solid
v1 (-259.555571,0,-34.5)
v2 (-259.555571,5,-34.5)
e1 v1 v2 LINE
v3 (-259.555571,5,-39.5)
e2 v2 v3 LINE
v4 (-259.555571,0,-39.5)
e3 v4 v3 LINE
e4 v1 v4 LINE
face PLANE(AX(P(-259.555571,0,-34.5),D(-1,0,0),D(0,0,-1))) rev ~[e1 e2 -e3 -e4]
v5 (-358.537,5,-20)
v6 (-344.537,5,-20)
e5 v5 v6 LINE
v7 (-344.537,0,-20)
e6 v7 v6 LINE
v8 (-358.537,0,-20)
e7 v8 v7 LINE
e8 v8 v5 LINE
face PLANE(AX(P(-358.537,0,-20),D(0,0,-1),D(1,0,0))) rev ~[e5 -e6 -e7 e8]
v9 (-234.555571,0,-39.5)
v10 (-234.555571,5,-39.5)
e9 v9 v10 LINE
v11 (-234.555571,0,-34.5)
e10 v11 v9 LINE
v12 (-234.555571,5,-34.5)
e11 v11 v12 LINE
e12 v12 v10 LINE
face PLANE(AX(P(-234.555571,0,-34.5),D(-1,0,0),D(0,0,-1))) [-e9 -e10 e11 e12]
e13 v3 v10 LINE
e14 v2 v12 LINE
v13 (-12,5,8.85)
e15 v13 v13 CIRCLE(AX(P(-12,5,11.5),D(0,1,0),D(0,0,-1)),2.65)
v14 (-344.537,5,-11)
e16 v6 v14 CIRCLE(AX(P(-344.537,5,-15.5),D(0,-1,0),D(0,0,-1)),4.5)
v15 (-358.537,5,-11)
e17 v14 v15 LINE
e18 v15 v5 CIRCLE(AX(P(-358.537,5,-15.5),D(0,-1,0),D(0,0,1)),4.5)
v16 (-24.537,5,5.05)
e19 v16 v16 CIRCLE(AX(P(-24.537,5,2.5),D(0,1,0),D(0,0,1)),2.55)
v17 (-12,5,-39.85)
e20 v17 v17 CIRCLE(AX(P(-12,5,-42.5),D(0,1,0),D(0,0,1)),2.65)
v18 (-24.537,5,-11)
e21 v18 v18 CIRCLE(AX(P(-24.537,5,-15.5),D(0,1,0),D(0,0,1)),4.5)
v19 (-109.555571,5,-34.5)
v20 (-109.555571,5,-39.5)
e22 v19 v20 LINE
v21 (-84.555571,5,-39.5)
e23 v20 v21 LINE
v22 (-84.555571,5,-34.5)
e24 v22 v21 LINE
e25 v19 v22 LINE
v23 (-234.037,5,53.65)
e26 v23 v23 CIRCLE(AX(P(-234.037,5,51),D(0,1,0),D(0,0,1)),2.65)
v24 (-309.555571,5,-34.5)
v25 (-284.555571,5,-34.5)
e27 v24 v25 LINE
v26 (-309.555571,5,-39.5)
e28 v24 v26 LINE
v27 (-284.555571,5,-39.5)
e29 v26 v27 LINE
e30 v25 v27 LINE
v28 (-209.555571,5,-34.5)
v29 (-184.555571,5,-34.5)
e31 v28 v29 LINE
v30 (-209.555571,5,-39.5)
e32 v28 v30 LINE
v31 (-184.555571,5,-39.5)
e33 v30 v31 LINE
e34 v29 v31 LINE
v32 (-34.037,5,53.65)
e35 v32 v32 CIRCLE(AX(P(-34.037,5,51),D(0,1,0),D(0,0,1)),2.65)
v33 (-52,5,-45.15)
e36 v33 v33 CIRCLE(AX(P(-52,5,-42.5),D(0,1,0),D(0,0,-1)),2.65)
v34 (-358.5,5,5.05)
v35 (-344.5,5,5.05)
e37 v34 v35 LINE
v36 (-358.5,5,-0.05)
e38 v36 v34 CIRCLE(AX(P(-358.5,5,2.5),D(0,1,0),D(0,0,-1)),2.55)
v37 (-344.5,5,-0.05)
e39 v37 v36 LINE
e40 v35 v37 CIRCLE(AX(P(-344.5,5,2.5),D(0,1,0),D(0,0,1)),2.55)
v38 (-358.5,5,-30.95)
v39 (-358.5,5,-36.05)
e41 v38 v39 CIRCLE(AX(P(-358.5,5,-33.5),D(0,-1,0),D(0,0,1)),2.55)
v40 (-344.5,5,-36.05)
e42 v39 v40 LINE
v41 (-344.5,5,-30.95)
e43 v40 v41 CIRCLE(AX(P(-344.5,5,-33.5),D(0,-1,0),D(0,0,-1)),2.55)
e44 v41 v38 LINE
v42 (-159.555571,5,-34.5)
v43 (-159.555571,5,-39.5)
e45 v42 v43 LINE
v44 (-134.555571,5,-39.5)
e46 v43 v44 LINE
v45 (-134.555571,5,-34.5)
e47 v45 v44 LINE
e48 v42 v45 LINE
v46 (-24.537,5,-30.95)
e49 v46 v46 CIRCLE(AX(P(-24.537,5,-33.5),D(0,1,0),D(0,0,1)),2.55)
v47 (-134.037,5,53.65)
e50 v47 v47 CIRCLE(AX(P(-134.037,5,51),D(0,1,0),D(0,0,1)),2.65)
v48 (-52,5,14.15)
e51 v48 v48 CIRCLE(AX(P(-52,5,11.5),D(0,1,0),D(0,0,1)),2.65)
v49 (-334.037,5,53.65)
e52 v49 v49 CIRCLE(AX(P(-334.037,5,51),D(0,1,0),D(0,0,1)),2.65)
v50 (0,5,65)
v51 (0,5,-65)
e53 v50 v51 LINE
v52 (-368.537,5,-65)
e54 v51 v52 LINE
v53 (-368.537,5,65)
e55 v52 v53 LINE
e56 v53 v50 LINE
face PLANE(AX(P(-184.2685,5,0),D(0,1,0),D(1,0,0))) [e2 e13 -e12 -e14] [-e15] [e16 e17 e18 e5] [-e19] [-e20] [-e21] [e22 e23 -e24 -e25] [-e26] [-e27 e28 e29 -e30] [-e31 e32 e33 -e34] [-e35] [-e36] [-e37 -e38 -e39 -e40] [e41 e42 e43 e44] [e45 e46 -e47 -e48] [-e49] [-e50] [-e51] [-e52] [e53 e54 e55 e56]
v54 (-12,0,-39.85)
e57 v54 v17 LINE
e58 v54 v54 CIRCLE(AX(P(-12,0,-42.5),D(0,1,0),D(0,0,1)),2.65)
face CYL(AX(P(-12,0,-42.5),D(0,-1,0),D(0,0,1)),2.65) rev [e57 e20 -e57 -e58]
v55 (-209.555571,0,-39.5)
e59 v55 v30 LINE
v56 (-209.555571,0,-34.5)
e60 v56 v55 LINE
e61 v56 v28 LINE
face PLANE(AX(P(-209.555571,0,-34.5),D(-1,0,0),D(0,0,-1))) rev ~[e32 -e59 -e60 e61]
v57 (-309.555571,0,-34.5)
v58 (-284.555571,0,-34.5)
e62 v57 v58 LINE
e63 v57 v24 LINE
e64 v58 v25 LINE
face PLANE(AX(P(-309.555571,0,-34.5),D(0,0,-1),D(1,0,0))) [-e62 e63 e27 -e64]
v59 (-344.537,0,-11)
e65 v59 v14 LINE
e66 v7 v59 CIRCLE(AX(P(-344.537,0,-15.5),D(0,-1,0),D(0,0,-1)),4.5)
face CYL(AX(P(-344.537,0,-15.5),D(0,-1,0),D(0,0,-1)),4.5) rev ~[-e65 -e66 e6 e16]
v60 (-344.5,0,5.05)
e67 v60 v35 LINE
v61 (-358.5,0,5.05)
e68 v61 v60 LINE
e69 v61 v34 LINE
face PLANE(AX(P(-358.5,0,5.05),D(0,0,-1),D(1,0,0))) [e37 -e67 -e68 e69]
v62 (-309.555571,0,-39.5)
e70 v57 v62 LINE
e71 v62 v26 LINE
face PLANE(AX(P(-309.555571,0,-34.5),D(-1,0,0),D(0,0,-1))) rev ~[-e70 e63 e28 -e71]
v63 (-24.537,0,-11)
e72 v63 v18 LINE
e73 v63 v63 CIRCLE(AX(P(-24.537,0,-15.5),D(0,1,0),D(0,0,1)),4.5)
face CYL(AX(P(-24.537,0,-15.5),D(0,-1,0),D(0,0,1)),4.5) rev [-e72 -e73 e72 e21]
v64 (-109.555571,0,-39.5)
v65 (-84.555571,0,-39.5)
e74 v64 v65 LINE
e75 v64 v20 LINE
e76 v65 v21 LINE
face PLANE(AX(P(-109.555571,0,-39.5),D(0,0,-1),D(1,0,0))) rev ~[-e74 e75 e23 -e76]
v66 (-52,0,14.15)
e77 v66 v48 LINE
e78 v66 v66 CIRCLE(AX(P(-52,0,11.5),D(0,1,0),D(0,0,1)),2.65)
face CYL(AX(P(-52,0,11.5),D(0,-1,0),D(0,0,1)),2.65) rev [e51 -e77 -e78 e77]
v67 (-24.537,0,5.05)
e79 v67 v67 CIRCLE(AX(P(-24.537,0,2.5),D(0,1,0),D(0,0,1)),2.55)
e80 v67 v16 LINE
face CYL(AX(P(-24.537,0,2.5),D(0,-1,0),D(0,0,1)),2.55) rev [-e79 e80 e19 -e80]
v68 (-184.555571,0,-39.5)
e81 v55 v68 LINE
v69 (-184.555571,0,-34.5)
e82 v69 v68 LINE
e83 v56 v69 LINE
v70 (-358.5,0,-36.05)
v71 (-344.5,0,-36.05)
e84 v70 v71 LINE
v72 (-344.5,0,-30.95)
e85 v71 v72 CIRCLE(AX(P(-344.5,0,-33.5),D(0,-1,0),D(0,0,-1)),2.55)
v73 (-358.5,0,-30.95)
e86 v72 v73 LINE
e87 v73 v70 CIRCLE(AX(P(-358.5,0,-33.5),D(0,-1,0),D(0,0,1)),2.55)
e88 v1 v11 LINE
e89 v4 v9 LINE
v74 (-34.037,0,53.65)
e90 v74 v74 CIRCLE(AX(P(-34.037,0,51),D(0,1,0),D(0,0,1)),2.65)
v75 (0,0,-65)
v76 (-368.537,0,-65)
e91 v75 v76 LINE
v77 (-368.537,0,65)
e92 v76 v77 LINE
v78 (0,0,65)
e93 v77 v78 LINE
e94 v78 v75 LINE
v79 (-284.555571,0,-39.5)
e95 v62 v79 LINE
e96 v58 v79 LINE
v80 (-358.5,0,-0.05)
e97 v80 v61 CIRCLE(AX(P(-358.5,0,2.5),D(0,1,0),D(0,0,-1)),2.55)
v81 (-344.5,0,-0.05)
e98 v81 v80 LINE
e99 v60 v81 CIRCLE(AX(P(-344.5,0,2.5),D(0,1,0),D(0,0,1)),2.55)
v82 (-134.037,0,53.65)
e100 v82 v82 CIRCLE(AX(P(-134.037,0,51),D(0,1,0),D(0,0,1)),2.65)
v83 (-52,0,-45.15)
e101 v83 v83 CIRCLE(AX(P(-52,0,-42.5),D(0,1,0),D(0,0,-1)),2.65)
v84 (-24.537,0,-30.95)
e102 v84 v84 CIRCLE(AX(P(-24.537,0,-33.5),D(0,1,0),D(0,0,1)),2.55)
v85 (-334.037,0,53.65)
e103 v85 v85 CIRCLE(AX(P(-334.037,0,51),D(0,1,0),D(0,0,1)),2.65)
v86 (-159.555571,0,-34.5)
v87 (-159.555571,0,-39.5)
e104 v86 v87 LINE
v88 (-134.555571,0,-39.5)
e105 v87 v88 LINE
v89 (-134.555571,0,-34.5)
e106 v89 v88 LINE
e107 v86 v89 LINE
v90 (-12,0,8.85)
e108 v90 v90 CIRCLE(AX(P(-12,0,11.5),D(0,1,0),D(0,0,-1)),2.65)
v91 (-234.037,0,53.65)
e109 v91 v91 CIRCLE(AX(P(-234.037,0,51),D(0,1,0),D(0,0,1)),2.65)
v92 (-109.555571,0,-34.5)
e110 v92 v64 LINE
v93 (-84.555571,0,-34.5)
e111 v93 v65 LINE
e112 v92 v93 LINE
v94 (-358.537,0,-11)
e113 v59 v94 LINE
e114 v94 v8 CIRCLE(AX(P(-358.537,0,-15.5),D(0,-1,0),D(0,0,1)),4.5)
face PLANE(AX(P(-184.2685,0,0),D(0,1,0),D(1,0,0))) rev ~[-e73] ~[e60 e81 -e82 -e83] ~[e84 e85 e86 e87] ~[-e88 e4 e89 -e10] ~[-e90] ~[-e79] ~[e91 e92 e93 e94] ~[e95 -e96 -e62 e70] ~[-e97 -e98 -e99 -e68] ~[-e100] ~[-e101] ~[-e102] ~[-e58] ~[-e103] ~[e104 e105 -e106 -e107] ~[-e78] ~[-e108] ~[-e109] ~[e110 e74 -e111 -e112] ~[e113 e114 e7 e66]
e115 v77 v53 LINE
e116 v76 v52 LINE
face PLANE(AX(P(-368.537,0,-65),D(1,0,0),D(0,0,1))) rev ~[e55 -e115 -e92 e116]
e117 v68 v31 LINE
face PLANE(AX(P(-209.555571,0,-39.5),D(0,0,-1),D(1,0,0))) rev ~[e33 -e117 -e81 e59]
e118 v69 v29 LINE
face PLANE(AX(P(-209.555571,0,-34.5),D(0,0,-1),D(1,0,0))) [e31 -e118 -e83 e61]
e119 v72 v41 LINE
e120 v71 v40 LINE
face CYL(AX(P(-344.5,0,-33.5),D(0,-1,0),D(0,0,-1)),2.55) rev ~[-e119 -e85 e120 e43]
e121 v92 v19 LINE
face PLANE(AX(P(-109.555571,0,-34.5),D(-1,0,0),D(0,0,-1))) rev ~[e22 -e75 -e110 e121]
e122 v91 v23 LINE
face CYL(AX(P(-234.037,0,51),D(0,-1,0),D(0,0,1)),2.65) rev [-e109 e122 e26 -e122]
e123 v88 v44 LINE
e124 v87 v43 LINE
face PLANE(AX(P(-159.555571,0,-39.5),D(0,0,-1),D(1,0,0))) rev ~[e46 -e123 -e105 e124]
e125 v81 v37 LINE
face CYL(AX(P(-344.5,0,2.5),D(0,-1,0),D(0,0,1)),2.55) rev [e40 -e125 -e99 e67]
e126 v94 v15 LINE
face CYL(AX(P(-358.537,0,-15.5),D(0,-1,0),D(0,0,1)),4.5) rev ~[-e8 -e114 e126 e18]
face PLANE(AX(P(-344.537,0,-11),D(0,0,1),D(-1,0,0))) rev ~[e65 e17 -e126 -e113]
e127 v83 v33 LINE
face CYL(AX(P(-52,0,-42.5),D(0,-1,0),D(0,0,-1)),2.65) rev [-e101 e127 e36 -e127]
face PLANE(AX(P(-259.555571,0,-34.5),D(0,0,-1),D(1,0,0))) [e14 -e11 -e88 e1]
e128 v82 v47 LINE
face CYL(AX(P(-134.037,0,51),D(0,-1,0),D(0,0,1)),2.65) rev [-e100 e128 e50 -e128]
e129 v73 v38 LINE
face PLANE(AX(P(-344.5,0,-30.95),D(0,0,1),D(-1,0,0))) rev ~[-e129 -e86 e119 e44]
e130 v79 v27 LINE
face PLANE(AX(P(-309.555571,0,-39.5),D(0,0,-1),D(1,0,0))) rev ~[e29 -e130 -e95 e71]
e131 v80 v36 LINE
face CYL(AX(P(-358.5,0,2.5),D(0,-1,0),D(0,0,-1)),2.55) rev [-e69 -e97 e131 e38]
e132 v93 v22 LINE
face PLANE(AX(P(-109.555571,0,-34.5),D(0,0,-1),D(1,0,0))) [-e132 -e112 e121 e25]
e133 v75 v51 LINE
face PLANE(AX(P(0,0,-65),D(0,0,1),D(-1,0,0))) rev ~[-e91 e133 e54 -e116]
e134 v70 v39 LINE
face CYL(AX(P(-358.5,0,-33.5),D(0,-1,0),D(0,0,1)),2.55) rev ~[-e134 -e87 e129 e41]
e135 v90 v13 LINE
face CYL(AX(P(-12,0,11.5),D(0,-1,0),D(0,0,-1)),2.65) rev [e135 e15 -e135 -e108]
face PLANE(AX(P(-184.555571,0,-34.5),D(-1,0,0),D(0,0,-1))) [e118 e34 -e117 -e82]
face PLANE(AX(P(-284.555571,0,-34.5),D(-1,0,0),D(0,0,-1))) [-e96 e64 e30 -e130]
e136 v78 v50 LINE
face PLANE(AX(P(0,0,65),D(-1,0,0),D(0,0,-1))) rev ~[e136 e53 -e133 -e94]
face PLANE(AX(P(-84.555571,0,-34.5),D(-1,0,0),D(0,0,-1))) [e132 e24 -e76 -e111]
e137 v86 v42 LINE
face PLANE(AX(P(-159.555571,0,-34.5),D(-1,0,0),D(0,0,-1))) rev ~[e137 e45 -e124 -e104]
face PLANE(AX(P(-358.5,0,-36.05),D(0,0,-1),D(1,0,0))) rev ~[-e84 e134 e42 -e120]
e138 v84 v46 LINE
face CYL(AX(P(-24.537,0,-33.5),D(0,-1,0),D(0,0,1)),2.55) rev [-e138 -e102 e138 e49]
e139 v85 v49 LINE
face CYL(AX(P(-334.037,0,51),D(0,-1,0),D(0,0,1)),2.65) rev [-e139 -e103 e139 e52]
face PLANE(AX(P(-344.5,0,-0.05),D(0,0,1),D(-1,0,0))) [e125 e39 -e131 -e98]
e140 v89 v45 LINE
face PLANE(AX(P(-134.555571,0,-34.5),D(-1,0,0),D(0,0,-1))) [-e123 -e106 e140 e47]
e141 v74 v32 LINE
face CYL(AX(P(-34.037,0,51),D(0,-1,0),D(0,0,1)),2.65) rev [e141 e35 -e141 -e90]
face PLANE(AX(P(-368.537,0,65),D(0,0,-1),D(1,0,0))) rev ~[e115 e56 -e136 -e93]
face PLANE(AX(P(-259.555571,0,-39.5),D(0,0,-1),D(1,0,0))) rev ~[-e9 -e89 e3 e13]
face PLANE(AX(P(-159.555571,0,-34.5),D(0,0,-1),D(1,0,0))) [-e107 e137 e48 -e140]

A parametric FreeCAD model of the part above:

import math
import FreeCAD as App
import Part
import Sketcher


def add_polygon(sketch, points):
    """Adds a closed chain of lines whose ends are joined by coincident constraints."""
    first, n = sketch.GeometryCount, len(points)
    for a, b in zip(points, points[1:] + points[:1]):
        sketch.addGeometry(Part.LineSegment(App.Vector(*a, 0), App.Vector(*b, 0)), False)
    for i in range(n):
        sketch.addConstraint(Sketcher.Constraint("Coincident", first + i, 2, first + (i + 1) % n, 1))

doc = App.newDocument("Part")
body = doc.addObject("PartDesign::Body", "Body")

# Sketch on XZ plane
sketch1 = body.newObject("Sketcher::SketchObject", "Sketch")
sketch1.AttachmentSupport = (doc.getObject("XZ_Plane"), [""])
sketch1.MapMode = "FlatFace"
add_polygon(sketch1, [(0, -65), (-368.537, -65), (-368.537, 65), (0, 65)])  # lines 0-3
sketch1.addGeometry(Part.Circle(App.Vector(-334.037, 51, 0), App.Vector(0, 0, 1), 2.65), False)  # 4
sketch1.addGeometry(Part.Circle(App.Vector(-234.037, 51, 0), App.Vector(0, 0, 1), 2.65), False)  # 5
sketch1.addGeometry(Part.Circle(App.Vector(-134.037, 51, 0), App.Vector(0, 0, 1), 2.65), False)  # 6
sketch1.addGeometry(Part.Circle(App.Vector(-34.037, 51, 0), App.Vector(0, 0, 1), 2.65), False)  # 7
sketch1.addGeometry(Part.Circle(App.Vector(-52, 11.5, 0), App.Vector(0, 0, 1), 2.65), False)  # 8
sketch1.addGeometry(Part.Circle(App.Vector(-12, 11.5, 0), App.Vector(0, 0, 1), 2.65), False)  # 9
sketch1.addGeometry(Part.LineSegment(App.Vector(-358.5, -0.05, 0), App.Vector(-344.5, -0.05, 0)), False)  # 10
sketch1.addGeometry(Part.ArcOfCircle(Part.Circle(App.Vector(-344.5, 2.5, 0), App.Vector(0, 0, 1), 2.55), math.radians(-90), math.radians(90)), False)  # 11
sketch1.addGeometry(Part.LineSegment(App.Vector(-344.5, 5.05, 0), App.Vector(-358.5, 5.05, 0)), False)  # 12
sketch1.addGeometry(Part.ArcOfCircle(Part.Circle(App.Vector(-358.5, 2.5, 0), App.Vector(0, 0, 1), 2.55), math.radians(90), math.radians(270)), False)  # 13
sketch1.addGeometry(Part.ArcOfCircle(Part.Circle(App.Vector(-358.537, -15.5, 0), App.Vector(0, 0, 1), 4.5), math.radians(90), math.radians(270)), False)  # 14
sketch1.addGeometry(Part.LineSegment(App.Vector(-358.537, -20, 0), App.Vector(-344.537, -20, 0)), False)  # 15
sketch1.addGeometry(Part.ArcOfCircle(Part.Circle(App.Vector(-344.537, -15.5, 0), App.Vector(0, 0, 1), 4.5), math.radians(-90), math.radians(90)), False)  # 16
sketch1.addGeometry(Part.LineSegment(App.Vector(-344.537, -11, 0), App.Vector(-358.537, -11, 0)), False)  # 17
sketch1.addGeometry(Part.ArcOfCircle(Part.Circle(App.Vector(-358.5, -33.5, 0), App.Vector(0, 0, 1), 2.55), math.radians(90), math.radians(270)), False)  # 18
sketch1.addGeometry(Part.LineSegment(App.Vector(-358.5, -36.05, 0), App.Vector(-344.5, -36.05, 0)), False)  # 19
sketch1.addGeometry(Part.ArcOfCircle(Part.Circle(App.Vector(-344.5, -33.5, 0), App.Vector(0, 0, 1), 2.55), math.radians(-90), math.radians(90)), False)  # 20
sketch1.addGeometry(Part.LineSegment(App.Vector(-344.5, -30.95, 0), App.Vector(-358.5, -30.95, 0)), False)  # 21
add_polygon(sketch1, [(-284.555571, -34.5), (-309.555571, -34.5), (-309.555571, -39.5), (-284.555571, -39.5)])  # lines 22-25
add_polygon(sketch1, [(-234.555571, -34.5), (-259.555571, -34.5), (-259.555571, -39.5), (-234.555571, -39.5)])  # lines 26-29
add_polygon(sketch1, [(-184.555571, -34.5), (-209.555571, -34.5), (-209.555571, -39.5), (-184.555571, -39.5)])  # lines 30-33
sketch1.addGeometry(Part.Circle(App.Vector(-24.537, 2.5, 0), App.Vector(0, 0, 1), 2.55), False)  # 34
sketch1.addGeometry(Part.Circle(App.Vector(-24.537, -15.5, 0), App.Vector(0, 0, 1), 4.5), False)  # 35
add_polygon(sketch1, [(-134.555571, -34.5), (-159.555571, -34.5), (-159.555571, -39.5), (-134.555571, -39.5)])  # lines 36-39
add_polygon(sketch1, [(-84.555571, -34.5), (-109.555571, -34.5), (-109.555571, -39.5), (-84.555571, -39.5)])  # lines 40-43
sketch1.addGeometry(Part.Circle(App.Vector(-24.537, -33.5, 0), App.Vector(0, 0, 1), 2.55), False)  # 44
sketch1.addGeometry(Part.Circle(App.Vector(-52, -42.5, 0), App.Vector(0, 0, 1), 2.65), False)  # 45
sketch1.addGeometry(Part.Circle(App.Vector(-12, -42.5, 0), App.Vector(0, 0, 1), 2.65), False)  # 46
sketch1.addConstraint([
    Sketcher.Constraint("Tangent", 10, 2, 11, 1),
    Sketcher.Constraint("Tangent", 11, 2, 12, 1),
    Sketcher.Constraint("Tangent", 12, 2, 13, 1),
    Sketcher.Constraint("Tangent", 13, 2, 10, 1),
    Sketcher.Constraint("Tangent", 14, 2, 15, 1),
    Sketcher.Constraint("Tangent", 15, 2, 16, 1),
    Sketcher.Constraint("Tangent", 16, 2, 17, 1),
    Sketcher.Constraint("Tangent", 17, 2, 14, 1),
    Sketcher.Constraint("Tangent", 18, 2, 19, 1),
    Sketcher.Constraint("Tangent", 19, 2, 20, 1),
    Sketcher.Constraint("Tangent", 20, 2, 21, 1),
    Sketcher.Constraint("Tangent", 21, 2, 18, 1),
    Sketcher.Constraint("Horizontal", 0),
    Sketcher.Constraint("Vertical", 1),
    Sketcher.Constraint("Horizontal", 2),
    Sketcher.Constraint("Vertical", 3),
    Sketcher.Constraint("Horizontal", 10),
    Sketcher.Constraint("Horizontal", 12),
    Sketcher.Constraint("Horizontal", 15),
    Sketcher.Constraint("Horizontal", 17),
    Sketcher.Constraint("Horizontal", 19),
    Sketcher.Constraint("Horizontal", 21),
    Sketcher.Constraint("Horizontal", 22),
    Sketcher.Constraint("Vertical", 23),
    Sketcher.Constraint("Horizontal", 24),
    Sketcher.Constraint("Vertical", 25),
    Sketcher.Constraint("Horizontal", 26),
    Sketcher.Constraint("Vertical", 27),
    Sketcher.Constraint("Horizontal", 28),
    Sketcher.Constraint("Vertical", 29),
    Sketcher.Constraint("Horizontal", 30),
    Sketcher.Constraint("Vertical", 31),
    Sketcher.Constraint("Horizontal", 32),
    Sketcher.Constraint("Vertical", 33),
    Sketcher.Constraint("Horizontal", 36),
    Sketcher.Constraint("Vertical", 37),
    Sketcher.Constraint("Horizontal", 38),
    Sketcher.Constraint("Vertical", 39),
    Sketcher.Constraint("Horizontal", 40),
    Sketcher.Constraint("Vertical", 41),
    Sketcher.Constraint("Horizontal", 42),
    Sketcher.Constraint("Vertical", 43),
    Sketcher.Constraint("Equal", 4, 5),
    Sketcher.Constraint("Equal", 5, 6),
    Sketcher.Constraint("Equal", 6, 7),
    Sketcher.Constraint("Equal", 7, 8),
    Sketcher.Constraint("Equal", 8, 9),
    Sketcher.Constraint("Equal", 13, 18),
    Sketcher.Constraint("Equal", 20, 34),
    Sketcher.Constraint("Equal", 16, 35),
    Sketcher.Constraint("Equal", 34, 44),
    Sketcher.Constraint("Equal", 9, 45),
    Sketcher.Constraint("Equal", 45, 46),
    Sketcher.Constraint("Symmetric", 2, 2, 3, 2, -1, 1),
    Sketcher.Constraint("Horizontal", 4, 3, 5, 3),
    Sketcher.Constraint("Horizontal", 5, 3, 6, 3),
    Sketcher.Constraint("Horizontal", 6, 3, 7, 3),
    Sketcher.Constraint("Horizontal", 8, 3, 9, 3),
    Sketcher.Constraint("Horizontal", 13, 3, 34, 3),
    Sketcher.Constraint("Horizontal", 16, 3, 35, 3),
    Sketcher.Constraint("Horizontal", 20, 3, 44, 3),
    Sketcher.Constraint("Horizontal", 45, 3, 46, 3),
    Sketcher.Constraint("Horizontal", 25, 2, 26, 2),
    Sketcher.Constraint("Horizontal", 24, 2, 27, 2),
    Sketcher.Constraint("Horizontal", 29, 2, 30, 2),
    Sketcher.Constraint("Horizontal", 28, 2, 31, 2),
    Sketcher.Constraint("Horizontal", 33, 2, 36, 2),
    Sketcher.Constraint("Horizontal", 32, 2, 37, 2),
    Sketcher.Constraint("Horizontal", 39, 2, 40, 2),
    Sketcher.Constraint("Horizontal", 38, 2, 41, 2),
    Sketcher.Constraint("Vertical", 13, 3, 18, 3),
    Sketcher.Constraint("Vertical", 11, 3, 20, 3),
    Sketcher.Constraint("Vertical", 34, 3, 35, 3),
    Sketcher.Constraint("Vertical", 35, 3, 44, 3),
    Sketcher.Constraint("Vertical", 8, 3, 45, 3),
    Sketcher.Constraint("Vertical", 9, 3, 46, 3),
    Sketcher.Constraint("Equal", 12, 15),
    Sketcher.Constraint("Equal", 24, 26),
    Sketcher.Constraint("Equal", 28, 30),
    Sketcher.Constraint("Equal", 32, 36),
    Sketcher.Constraint("Equal", 38, 40),
    Sketcher.Constraint("Diameter", 35, 9.0),
    Sketcher.Constraint("Diameter", 4, 5.3),
    Sketcher.Constraint("Diameter", 34, 5.1),
    Sketcher.Constraint("DistanceX", 10, 1, 10, 2, 14.0),
    Sketcher.Constraint("DistanceX", 22, 2, 22, 1, 25.0),
    Sketcher.Constraint("DistanceY", 1, 1, 1, 2, 130.0),
    Sketcher.Constraint("DistanceY", 23, 2, 23, 1, 5.0),
    Sketcher.Constraint("DistanceY", -1, 1, 4, 3, 51.0),
    Sketcher.Constraint("DistanceX", 8, 3, -1, 1, 52.0),
    Sketcher.Constraint("DistanceX", 9, 3, -1, 1, 12.0),
    Sketcher.Constraint("DistanceY", 14, 2, -1, 1, 20.0),
    Sketcher.Constraint("DistanceX", 4, 3, 5, 3, 100.0),
    Sketcher.Constraint("DistanceX", 5, 3, 6, 3, 100.0),
    Sketcher.Constraint("DistanceX", 6, 3, 7, 3, 100.0),
    Sketcher.Constraint("DistanceY", 11, 3, 8, 3, 9.0),
    Sketcher.Constraint("DistanceY", 14, 3, 13, 3, 18.0),
    Sketcher.Constraint("DistanceY", 18, 3, 14, 3, 18.0),
    Sketcher.Constraint("DistanceY", 45, 3, 44, 3, 9.0),
    Sketcher.Constraint("DistanceX", 0, 2, 14, 3, 10.0),
    Sketcher.Constraint("DistanceY", 22, 2, 20, 3, 1.0),
    Sketcher.Constraint("DistanceX", 25, 2, 26, 2, 25.0),
    Sketcher.Constraint("DistanceX", 29, 2, 30, 2, 25.0),
    Sketcher.Constraint("DistanceX", 33, 2, 36, 2, 25.0),
    Sketcher.Constraint("DistanceX", 39, 2, 40, 2, 25.0),
    Sketcher.Constraint("DistanceX", 11, 3, -1, 1, 344.5),
    Sketcher.Constraint("DistanceX", 14, 3, 4, 3, 24.5),
    Sketcher.Constraint("DistanceX", 7, 3, 34, 3, 9.5),
    Sketcher.Constraint("DistanceX", 0, 2, 0, 1, 368.537),
    Sketcher.Constraint("DistanceX", 22, 2, -1, 1, 309.555571),
])
pad1 = body.newObject("PartDesign::Pad", "Pad")
pad1.Profile = sketch1
pad1.Length = 5
pad1.Reversed = True

doc.recompute()
